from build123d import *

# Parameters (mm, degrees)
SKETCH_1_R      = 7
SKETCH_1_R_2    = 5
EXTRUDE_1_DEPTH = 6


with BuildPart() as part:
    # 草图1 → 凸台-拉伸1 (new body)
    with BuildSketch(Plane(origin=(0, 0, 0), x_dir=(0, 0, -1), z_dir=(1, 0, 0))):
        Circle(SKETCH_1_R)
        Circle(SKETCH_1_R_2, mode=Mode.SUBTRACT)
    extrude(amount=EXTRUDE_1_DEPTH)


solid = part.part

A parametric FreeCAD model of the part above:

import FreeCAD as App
import Part
import Sketcher

doc = App.newDocument("Part")
params = doc.addObject("Spreadsheet::Sheet", "Params")
for row, (alias, value) in enumerate([
    ("sketch1_diameter", "14 mm"),
    ("sketch1_diameter2", "10 mm"),
    ("pad1_length", "6 mm"),
], start=1):
    params.set(f"A{row}", alias)
    params.set(f"B{row}", "=" + value)
    params.setAlias(f"B{row}", alias)

body = doc.addObject("PartDesign::Body", "Body")

# Sketch on YZ plane
sketch1 = body.newObject("Sketcher::SketchObject", "Sketch")
sketch1.AttachmentSupport = (doc.getObject("YZ_Plane"), [""])
sketch1.MapMode = "FlatFace"
sketch1.addGeometry(Part.Circle(App.Vector(0, 0, 0), App.Vector(0, 0, 1), 7), False)
sketch1.addGeometry(Part.Circle(App.Vector(0, 0, 0), App.Vector(0, 0, 1), 5), False)
sketch1.addConstraint(Sketcher.Constraint("Coincident", 0, 3, -1, 1))
sketch1.addConstraint(Sketcher.Constraint("Coincident", 1, 3, -1, 1))
sketch1.addConstraint(Sketcher.Constraint("Diameter", 0, 14.0))
sketch1.addConstraint(Sketcher.Constraint("Diameter", 1, 10.0))
sketch1.setExpression("Constraints[2]", "Params.sketch1_diameter")
sketch1.setExpression("Constraints[3]", "Params.sketch1_diameter2")
pad1 = body.newObject("PartDesign::Pad", "Pad")
pad1.Profile = sketch1
pad1.setExpression("Length", "Params.pad1_length")

doc.recompute()
